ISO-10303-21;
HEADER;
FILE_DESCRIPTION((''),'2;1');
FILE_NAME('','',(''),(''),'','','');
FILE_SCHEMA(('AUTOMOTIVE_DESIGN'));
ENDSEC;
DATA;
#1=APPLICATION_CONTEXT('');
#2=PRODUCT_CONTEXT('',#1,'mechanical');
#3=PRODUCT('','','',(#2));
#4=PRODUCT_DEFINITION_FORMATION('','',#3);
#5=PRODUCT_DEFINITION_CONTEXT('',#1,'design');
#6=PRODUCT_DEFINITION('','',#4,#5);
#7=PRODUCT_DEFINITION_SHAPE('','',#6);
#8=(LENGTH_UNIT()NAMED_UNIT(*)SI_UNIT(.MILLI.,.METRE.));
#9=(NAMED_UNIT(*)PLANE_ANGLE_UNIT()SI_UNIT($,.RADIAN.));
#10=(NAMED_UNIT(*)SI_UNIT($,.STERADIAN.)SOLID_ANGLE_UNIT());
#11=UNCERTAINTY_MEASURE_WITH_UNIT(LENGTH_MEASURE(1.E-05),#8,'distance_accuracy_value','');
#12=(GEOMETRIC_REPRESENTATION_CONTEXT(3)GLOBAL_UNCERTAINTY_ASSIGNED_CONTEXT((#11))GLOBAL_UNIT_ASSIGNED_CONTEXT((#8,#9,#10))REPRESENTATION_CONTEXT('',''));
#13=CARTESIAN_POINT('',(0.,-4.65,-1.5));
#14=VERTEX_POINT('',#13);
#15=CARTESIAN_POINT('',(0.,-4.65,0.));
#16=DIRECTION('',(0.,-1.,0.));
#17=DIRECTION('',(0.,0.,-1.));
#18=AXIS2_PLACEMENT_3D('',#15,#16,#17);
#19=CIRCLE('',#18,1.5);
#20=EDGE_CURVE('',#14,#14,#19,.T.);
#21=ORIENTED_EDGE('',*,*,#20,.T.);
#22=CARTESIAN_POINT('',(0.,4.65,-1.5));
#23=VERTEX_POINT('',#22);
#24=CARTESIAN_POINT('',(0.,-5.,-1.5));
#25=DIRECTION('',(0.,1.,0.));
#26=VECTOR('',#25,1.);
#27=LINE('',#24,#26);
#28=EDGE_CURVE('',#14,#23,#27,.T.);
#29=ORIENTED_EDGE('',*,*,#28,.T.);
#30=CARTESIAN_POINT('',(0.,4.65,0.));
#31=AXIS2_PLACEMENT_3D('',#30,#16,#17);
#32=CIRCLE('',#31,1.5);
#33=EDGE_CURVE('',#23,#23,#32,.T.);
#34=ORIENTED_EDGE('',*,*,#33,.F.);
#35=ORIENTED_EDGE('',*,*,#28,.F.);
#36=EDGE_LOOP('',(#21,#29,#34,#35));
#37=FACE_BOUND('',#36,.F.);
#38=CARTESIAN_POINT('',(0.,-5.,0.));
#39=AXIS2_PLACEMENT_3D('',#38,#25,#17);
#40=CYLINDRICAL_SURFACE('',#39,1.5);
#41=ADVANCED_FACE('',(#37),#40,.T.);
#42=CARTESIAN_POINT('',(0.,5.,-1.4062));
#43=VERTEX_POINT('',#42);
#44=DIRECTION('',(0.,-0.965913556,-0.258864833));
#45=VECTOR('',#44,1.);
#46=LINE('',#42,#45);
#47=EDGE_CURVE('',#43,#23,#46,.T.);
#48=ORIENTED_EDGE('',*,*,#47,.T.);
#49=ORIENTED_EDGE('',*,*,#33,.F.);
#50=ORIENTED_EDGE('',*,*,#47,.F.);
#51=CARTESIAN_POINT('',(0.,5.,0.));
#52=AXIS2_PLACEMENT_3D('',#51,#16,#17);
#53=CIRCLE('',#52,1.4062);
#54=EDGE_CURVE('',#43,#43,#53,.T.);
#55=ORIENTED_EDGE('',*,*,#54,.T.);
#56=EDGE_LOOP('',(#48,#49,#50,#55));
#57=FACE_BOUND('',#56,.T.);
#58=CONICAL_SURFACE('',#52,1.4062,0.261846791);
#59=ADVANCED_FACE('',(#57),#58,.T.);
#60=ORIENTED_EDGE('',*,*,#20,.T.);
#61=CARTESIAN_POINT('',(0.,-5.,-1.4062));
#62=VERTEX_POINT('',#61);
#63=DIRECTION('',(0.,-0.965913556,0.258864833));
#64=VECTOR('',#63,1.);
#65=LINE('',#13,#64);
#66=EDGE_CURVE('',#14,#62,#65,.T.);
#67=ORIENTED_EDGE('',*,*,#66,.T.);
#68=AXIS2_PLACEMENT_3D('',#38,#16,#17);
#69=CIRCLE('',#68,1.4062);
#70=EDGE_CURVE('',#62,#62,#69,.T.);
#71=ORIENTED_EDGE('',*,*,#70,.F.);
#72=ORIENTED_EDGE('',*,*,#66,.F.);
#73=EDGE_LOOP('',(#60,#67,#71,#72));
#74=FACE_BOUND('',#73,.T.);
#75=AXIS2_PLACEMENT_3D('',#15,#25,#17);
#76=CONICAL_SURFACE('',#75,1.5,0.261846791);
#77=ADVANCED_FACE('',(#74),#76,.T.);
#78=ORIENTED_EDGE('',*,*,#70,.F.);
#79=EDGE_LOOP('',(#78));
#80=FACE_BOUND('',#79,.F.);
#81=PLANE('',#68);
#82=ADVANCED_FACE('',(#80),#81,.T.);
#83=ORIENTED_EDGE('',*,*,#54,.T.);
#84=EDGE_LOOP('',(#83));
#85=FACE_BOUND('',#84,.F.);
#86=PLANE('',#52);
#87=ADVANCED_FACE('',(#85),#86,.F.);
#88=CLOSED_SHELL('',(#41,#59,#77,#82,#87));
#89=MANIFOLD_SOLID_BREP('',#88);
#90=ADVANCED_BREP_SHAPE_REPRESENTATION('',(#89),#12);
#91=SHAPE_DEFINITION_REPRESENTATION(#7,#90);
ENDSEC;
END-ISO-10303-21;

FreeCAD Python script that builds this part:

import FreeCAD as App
import Part
import Sketcher

V = App.Vector

doc = App.newDocument("Part")
params = doc.addObject("Spreadsheet::Sheet", "Params")
for row, (alias, value) in enumerate([
    ("sketch1_width", "10 mm"),
    ("revolution_angle", "360 deg"),
], start=1):
    params.set(f"A{row}", alias)
    params.set(f"B{row}", "=" + value)
    params.setAlias(f"B{row}", alias)

body = doc.addObject("PartDesign::Body", "Body")

# Sketch on YZ plane
sketch1 = body.newObject("Sketcher::SketchObject", "Sketch")
sketch1.AttachmentSupport = (doc.getObject("YZ_Plane"), [""])
sketch1.MapMode = "FlatFace"
sketch1.addGeometry([
    Part.LineSegment(V(5, -1.41, 0), V(5, 0, 0)),  # 0
    Part.LineSegment(V(5, 0, 0), V(-5, 0, 0)),  # 1
    Part.LineSegment(V(-5, 0, 0), V(-5, -1.41, 0)),  # 2
    Part.LineSegment(V(-5, -1.41, 0), V(-4.65, -1.5, 0)),  # 3
    Part.LineSegment(V(-4.65, -1.5, 0), V(4.65, -1.5, 0)),  # 4
    Part.LineSegment(V(4.65, -1.5, 0), V(5, -1.41, 0)),  # 5
], False)
sketch1.addConstraint([
    Sketcher.Constraint("Coincident", 0, 2, 1, 1),
    Sketcher.Constraint("Coincident", 1, 2, 2, 1),
    Sketcher.Constraint("Coincident", 2, 2, 3, 1),
    Sketcher.Constraint("Coincident", 3, 2, 4, 1),
    Sketcher.Constraint("Coincident", 4, 2, 5, 1),
    Sketcher.Constraint("Coincident", 5, 2, 0, 1),
    Sketcher.Constraint("Vertical", 0),
    Sketcher.Constraint("Horizontal", 1),
    Sketcher.Constraint("Vertical", 2),
    Sketcher.Constraint("Horizontal", 4),
    Sketcher.Constraint("Symmetric", 0, 2, 1, 2, -1, 1),
    Sketcher.Constraint("Horizontal", 2, 2, 5, 2),
    Sketcher.Constraint("Equal", 3, 5),
    Sketcher.Constraint("DistanceX", 1, 2, 1, 1, 10.0),
    Sketcher.Constraint("DistanceX", 2, 2, 3, 2, 0.35),
    Sketcher.Constraint("DistanceY", 3, 2, -1, 1, 1.5),
    Sketcher.Constraint("DistanceY", 0, 1, 0, 2, 1.4062),
])
sketch1.setExpression("Constraints[13]", "Params.sketch1_width")
revolution = body.newObject("PartDesign::Revolution", "Revolution")
revolution.Profile = sketch1
revolution.ReferenceAxis = (sketch1, ["H_Axis"])
revolution.setExpression("Angle", "Params.revolution_angle")

doc.recompute()
